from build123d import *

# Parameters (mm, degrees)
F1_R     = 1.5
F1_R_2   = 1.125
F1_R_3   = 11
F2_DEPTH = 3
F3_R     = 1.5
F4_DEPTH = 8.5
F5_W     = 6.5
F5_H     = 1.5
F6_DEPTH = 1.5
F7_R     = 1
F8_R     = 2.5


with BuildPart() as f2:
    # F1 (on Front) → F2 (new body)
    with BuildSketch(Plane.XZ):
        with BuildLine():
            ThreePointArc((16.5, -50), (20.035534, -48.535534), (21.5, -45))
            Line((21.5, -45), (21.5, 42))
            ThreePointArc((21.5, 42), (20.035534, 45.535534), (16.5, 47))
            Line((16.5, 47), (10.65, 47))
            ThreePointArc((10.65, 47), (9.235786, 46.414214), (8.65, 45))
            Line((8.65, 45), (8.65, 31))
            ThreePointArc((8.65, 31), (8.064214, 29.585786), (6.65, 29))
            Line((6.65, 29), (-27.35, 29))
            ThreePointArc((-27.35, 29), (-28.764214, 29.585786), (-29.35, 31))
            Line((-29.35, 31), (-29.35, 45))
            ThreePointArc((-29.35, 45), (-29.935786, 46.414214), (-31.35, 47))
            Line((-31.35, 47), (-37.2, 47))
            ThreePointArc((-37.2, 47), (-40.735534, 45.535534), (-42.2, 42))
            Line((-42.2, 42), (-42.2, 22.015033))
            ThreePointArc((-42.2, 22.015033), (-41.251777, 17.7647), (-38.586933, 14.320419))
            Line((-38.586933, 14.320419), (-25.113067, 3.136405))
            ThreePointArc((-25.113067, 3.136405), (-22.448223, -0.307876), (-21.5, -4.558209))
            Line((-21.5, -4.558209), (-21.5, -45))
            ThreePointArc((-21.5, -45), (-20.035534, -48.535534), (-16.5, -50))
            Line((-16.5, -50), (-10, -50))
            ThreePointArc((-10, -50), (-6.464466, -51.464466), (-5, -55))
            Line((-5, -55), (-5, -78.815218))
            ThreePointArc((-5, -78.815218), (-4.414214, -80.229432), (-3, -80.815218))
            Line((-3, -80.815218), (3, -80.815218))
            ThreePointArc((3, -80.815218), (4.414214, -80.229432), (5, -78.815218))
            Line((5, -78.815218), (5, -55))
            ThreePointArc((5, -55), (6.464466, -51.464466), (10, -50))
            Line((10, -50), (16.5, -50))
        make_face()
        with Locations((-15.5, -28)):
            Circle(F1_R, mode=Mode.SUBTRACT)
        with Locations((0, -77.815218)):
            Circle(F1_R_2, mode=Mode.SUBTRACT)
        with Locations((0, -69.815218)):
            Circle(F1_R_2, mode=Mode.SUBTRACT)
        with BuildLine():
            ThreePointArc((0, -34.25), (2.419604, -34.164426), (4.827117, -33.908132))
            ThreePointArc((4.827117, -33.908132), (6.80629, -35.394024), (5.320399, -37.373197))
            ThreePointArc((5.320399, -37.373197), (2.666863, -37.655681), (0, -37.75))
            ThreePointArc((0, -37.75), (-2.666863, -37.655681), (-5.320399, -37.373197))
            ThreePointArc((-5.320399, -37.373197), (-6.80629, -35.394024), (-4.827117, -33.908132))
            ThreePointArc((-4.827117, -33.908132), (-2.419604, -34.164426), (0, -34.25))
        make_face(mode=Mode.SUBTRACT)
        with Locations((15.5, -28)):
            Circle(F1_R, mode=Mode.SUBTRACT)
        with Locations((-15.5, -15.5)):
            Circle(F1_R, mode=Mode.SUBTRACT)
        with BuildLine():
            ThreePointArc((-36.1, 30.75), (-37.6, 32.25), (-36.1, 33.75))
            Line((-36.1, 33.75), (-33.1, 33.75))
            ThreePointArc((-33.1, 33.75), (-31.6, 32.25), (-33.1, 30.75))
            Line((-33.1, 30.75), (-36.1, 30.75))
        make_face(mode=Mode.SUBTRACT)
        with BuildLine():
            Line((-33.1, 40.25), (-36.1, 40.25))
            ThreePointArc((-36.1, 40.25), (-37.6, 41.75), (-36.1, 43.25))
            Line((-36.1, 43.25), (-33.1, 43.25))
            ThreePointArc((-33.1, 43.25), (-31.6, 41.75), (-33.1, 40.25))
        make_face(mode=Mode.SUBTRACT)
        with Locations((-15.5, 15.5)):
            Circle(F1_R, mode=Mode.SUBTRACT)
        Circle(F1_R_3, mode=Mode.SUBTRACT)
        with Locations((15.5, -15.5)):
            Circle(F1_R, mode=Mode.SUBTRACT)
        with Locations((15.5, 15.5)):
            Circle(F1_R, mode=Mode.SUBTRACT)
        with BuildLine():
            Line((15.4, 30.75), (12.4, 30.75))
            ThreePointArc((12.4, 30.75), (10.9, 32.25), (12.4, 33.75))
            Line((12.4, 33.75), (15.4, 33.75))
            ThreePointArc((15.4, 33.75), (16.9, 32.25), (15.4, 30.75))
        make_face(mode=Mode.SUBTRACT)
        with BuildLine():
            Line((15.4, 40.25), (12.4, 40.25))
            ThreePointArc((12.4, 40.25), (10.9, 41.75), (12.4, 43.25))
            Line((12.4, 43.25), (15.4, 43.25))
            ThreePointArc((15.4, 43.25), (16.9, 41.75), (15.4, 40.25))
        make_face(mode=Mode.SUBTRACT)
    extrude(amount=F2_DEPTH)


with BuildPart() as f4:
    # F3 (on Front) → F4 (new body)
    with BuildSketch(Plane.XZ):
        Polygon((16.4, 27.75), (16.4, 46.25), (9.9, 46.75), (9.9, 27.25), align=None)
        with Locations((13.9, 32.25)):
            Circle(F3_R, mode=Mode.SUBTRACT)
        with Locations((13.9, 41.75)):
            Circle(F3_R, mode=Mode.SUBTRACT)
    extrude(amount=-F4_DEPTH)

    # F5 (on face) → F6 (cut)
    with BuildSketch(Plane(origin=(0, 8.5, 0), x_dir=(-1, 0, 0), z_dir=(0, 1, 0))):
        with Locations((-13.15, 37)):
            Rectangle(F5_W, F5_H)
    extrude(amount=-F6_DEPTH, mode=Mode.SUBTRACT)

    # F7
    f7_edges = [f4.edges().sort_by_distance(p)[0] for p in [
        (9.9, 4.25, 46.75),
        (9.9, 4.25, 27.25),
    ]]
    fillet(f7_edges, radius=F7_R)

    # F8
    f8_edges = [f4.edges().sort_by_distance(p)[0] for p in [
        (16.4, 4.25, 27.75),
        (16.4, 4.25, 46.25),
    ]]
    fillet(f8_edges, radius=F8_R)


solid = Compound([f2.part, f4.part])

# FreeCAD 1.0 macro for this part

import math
import FreeCAD as App
import Part
import Sketcher


def edges_at(feature, points):
    """Names of the edges that pass closest to the given points."""
    edges = feature.Shape.Edges
    near = lambda p: min(range(len(edges)), key=lambda i: edges[i].distToShape(Part.Vertex(*p))[0])
    return sorted({f"Edge{near(p) + 1}" for p in points})

doc = App.newDocument("Part")
body = doc.addObject("PartDesign::Body", "Body")

sketch1 = body.newObject("Sketcher::SketchObject", "Sketch")
sketch1.AttachmentSupport = (doc.getObject("XZ_Plane"), [""])
sketch1.MapMode = "FlatFace"
sketch1.addGeometry(Part.ArcOfCircle(Part.Circle(App.Vector(16.5, -45, 0), App.Vector(0, 0, 1), 5), math.radians(-90.000004), math.radians(0.000004)), False)
sketch1.addGeometry(Part.LineSegment(App.Vector(21.5, -45, 0), App.Vector(21.5, 42, 0)), False)
sketch1.addGeometry(Part.ArcOfCircle(Part.Circle(App.Vector(16.5, 42, 0), App.Vector(0, 0, 1), 5), math.radians(-0.000004), math.radians(90.000004)), False)
sketch1.addGeometry(Part.LineSegment(App.Vector(16.5, 47, 0), App.Vector(10.65, 47, 0)), False)
sketch1.addGeometry(Part.ArcOfCircle(Part.Circle(App.Vector(10.649999, 45.000001, 0), App.Vector(0, 0, 1), 1.999999), math.radians(89.999957), math.radians(180.000043)), False)
sketch1.addGeometry(Part.LineSegment(App.Vector(8.65, 45, 0), App.Vector(8.65, 31, 0)), False)
sketch1.addGeometry(Part.ArcOfCircle(Part.Circle(App.Vector(6.650001, 30.999999, 0), App.Vector(0, 0, 1), 1.999999), math.radians(-90.000043), math.radians(0.000043)), False)
sketch1.addGeometry(Part.LineSegment(App.Vector(6.65, 29, 0), App.Vector(-27.35, 29, 0)), False)
sketch1.addGeometry(Part.ArcOfCircle(Part.Circle(App.Vector(-27.350001, 30.999999, 0), App.Vector(0, 0, 1), 1.999999), math.radians(179.999957), math.radians(270.000043)), False)
sketch1.addGeometry(Part.LineSegment(App.Vector(-29.35, 31, 0), App.Vector(-29.35, 45, 0)), False)
sketch1.addGeometry(Part.ArcOfCircle(Part.Circle(App.Vector(-31.349999, 45.000001, 0), App.Vector(0, 0, 1), 1.999999), math.radians(-0.000043), math.radians(90.000043)), False)
sketch1.addGeometry(Part.LineSegment(App.Vector(-31.35, 47, 0), App.Vector(-37.2, 47, 0)), False)
sketch1.addGeometry(Part.ArcOfCircle(Part.Circle(App.Vector(-37.2, 42, 0), App.Vector(0, 0, 1), 5), math.radians(89.999996), math.radians(180.000004)), False)
sketch1.addGeometry(Part.LineSegment(App.Vector(-42.2, 42, 0), App.Vector(-42.2, 22.015033, 0)), False)
sketch1.addGeometry(Part.ArcOfCircle(Part.Circle(App.Vector(-32.199999, 22.015033, 0), App.Vector(0, 0, 1), 10.000001), math.radians(-179.999998), math.radians(-129.694453)), False)
sketch1.addGeometry(Part.LineSegment(App.Vector(-38.586933, 14.320419, 0), App.Vector(-25.113067, 3.136405, 0)), False)
sketch1.addGeometry(Part.ArcOfCircle(Part.Circle(App.Vector(-31.500001, -4.558209, 0), App.Vector(0, 0, 1), 10.000001), math.radians(0.000002), math.radians(50.305547)), False)
sketch1.addGeometry(Part.LineSegment(App.Vector(-21.5, -4.558209, 0), App.Vector(-21.5, -45, 0)), False)
sketch1.addGeometry(Part.ArcOfCircle(Part.Circle(App.Vector(-16.5, -45, 0), App.Vector(0, 0, 1), 5), math.radians(179.999996), math.radians(270.000004)), False)
sketch1.addGeometry(Part.LineSegment(App.Vector(-16.5, -50, 0), App.Vector(-10, -50, 0)), False)
sketch1.addGeometry(Part.ArcOfCircle(Part.Circle(App.Vector(-10, -55, 0), App.Vector(0, 0, 1), 5), math.radians(-0.000004), math.radians(90.000004)), False)
sketch1.addGeometry(Part.LineSegment(App.Vector(-5, -55, 0), App.Vector(-5, -78.815218, 0)), False)
sketch1.addGeometry(Part.ArcOfCircle(Part.Circle(App.Vector(-3.000001, -78.815219, 0), App.Vector(0, 0, 1), 1.999999), math.radians(179.999957), math.radians(270.000043)), False)
sketch1.addGeometry(Part.LineSegment(App.Vector(-3, -80.815218, 0), App.Vector(3, -80.815218, 0)), False)
sketch1.addGeometry(Part.ArcOfCircle(Part.Circle(App.Vector(3.000001, -78.815219, 0), App.Vector(0, 0, 1), 1.999999), math.radians(-90.000043), math.radians(0.000043)), False)
sketch1.addGeometry(Part.LineSegment(App.Vector(5, -78.815218, 0), App.Vector(5, -55, 0)), False)
sketch1.addGeometry(Part.ArcOfCircle(Part.Circle(App.Vector(10, -55, 0), App.Vector(0, 0, 1), 5), math.radians(89.999996), math.radians(180.000004)), False)
sketch1.addGeometry(Part.LineSegment(App.Vector(10, -50, 0), App.Vector(16.5, -50, 0)), False)
sketch1.addGeometry(Part.Circle(App.Vector(-15.5, -28, 0), App.Vector(0, 0, 1), 1.5), False)
sketch1.addGeometry(Part.Circle(App.Vector(0, -77.815218, 0), App.Vector(0, 0, 1), 1.125), False)
sketch1.addGeometry(Part.Circle(App.Vector(0, -69.815218, 0), App.Vector(0, 0, 1), 1.125), False)
sketch1.addGeometry(Part.ArcOfCircle(Part.Circle(App.Vector(0.000003, -0.000002, 0), App.Vector(0, 0, 1), 34.249998), math.radians(-98.102117), math.radians(-90.000004)), False)
sketch1.addGeometry(Part.ArcOfCircle(Part.Circle(App.Vector(-0.000003, -0.000002, 0), App.Vector(0, 0, 1), 34.249998), math.radians(-89.999996), math.radians(-81.897883)), False)
sketch1.addGeometry(Part.ArcOfCircle(Part.Circle(App.Vector(5.073757, -35.640665, 0), App.Vector(0, 0, 1), 1.75), math.radians(-81.897871), math.radians(98.102092)), False)
sketch1.addGeometry(Part.ArcOfCircle(Part.Circle(App.Vector(-0.000011, 0.000158, 0), App.Vector(0, 0, 1), 37.750158), math.radians(-89.999983), math.radians(-81.897905)), False)
sketch1.addGeometry(Part.ArcOfCircle(Part.Circle(App.Vector(0.000011, 0.000158, 0), App.Vector(0, 0, 1), 37.750158), math.radians(-98.102095), math.radians(-90.000017)), False)
sketch1.addGeometry(Part.ArcOfCircle(Part.Circle(App.Vector(-5.073757, -35.640665, 0), App.Vector(0, 0, 1), 1.75), math.radians(81.897908), math.radians(261.897871)), False)
sketch1.addGeometry(Part.Circle(App.Vector(15.5, -28, 0), App.Vector(0, 0, 1), 1.5), False)
sketch1.addGeometry(Part.Circle(App.Vector(-15.5, -15.5, 0), App.Vector(0, 0, 1), 1.5), False)
sketch1.addGeometry(Part.LineSegment(App.Vector(-33.1, 30.75, 0), App.Vector(-36.1, 30.75, 0)), False)
sketch1.addGeometry(Part.ArcOfCircle(Part.Circle(App.Vector(-36.1, 32.25, 0), App.Vector(0, 0, 1), 1.5), math.radians(90), math.radians(270)), False)
sketch1.addGeometry(Part.LineSegment(App.Vector(-36.1, 33.75, 0), App.Vector(-33.1, 33.75, 0)), False)
sketch1.addGeometry(Part.ArcOfCircle(Part.Circle(App.Vector(-33.1, 32.25, 0), App.Vector(0, 0, 1), 1.5), math.radians(-90), math.radians(90)), False)
sketch1.addGeometry(Part.ArcOfCircle(Part.Circle(App.Vector(-33.1, 41.75, 0), App.Vector(0, 0, 1), 1.5), math.radians(-90), math.radians(90)), False)
sketch1.addGeometry(Part.LineSegment(App.Vector(-33.1, 40.25, 0), App.Vector(-36.1, 40.25, 0)), False)
sketch1.addGeometry(Part.ArcOfCircle(Part.Circle(App.Vector(-36.1, 41.75, 0), App.Vector(0, 0, 1), 1.5), math.radians(90), math.radians(270)), False)
sketch1.addGeometry(Part.LineSegment(App.Vector(-36.1, 43.25, 0), App.Vector(-33.1, 43.25, 0)), False)
sketch1.addGeometry(Part.Circle(App.Vector(-15.5, 15.5, 0), App.Vector(0, 0, 1), 1.5), False)
sketch1.addGeometry(Part.Circle(App.Vector(0, 0, 0), App.Vector(0, 0, 1), 11), False)
sketch1.addGeometry(Part.Circle(App.Vector(15.5, -15.5, 0), App.Vector(0, 0, 1), 1.5), False)
sketch1.addGeometry(Part.Circle(App.Vector(15.5, 15.5, 0), App.Vector(0, 0, 1), 1.5), False)
sketch1.addGeometry(Part.ArcOfCircle(Part.Circle(App.Vector(15.4, 32.25, 0), App.Vector(0, 0, 1), 1.5), math.radians(-90), math.radians(90)), False)
sketch1.addGeometry(Part.LineSegment(App.Vector(15.4, 30.75, 0), App.Vector(12.4, 30.75, 0)), False)
sketch1.addGeometry(Part.ArcOfCircle(Part.Circle(App.Vector(12.4, 32.25, 0), App.Vector(0, 0, 1), 1.5), math.radians(90), math.radians(270)), False)
sketch1.addGeometry(Part.LineSegment(App.Vector(12.4, 33.75, 0), App.Vector(15.4, 33.75, 0)), False)
sketch1.addGeometry(Part.ArcOfCircle(Part.Circle(App.Vector(15.4, 41.75, 0), App.Vector(0, 0, 1), 1.5), math.radians(-90), math.radians(90)), False)
sketch1.addGeometry(Part.LineSegment(App.Vector(15.4, 40.25, 0), App.Vector(12.4, 40.25, 0)), False)
sketch1.addGeometry(Part.ArcOfCircle(Part.Circle(App.Vector(12.4, 41.75, 0), App.Vector(0, 0, 1), 1.5), math.radians(90), math.radians(270)), False)
sketch1.addGeometry(Part.LineSegment(App.Vector(12.4, 43.25, 0), App.Vector(15.4, 43.25, 0)), False)
sketch1.addConstraint(Sketcher.Constraint("Coincident", 0, 2, 1, 1))
sketch1.addConstraint(Sketcher.Constraint("Coincident", 1, 2, 2, 1))
sketch1.addConstraint(Sketcher.Constraint("Coincident", 2, 2, 3, 1))
sketch1.addConstraint(Sketcher.Constraint("Coincident", 3, 2, 4, 1))
sketch1.addConstraint(Sketcher.Constraint("Coincident", 4, 2, 5, 1))
sketch1.addConstraint(Sketcher.Constraint("Coincident", 5, 2, 6, 2))
sketch1.addConstraint(Sketcher.Constraint("Coincident", 6, 1, 7, 1))
sketch1.addConstraint(Sketcher.Constraint("Coincident", 7, 2, 8, 2))
sketch1.addConstraint(Sketcher.Constraint("Coincident", 8, 1, 9, 1))
sketch1.addConstraint(Sketcher.Constraint("Coincident", 9, 2, 10, 1))
sketch1.addConstraint(Sketcher.Constraint("Coincident", 10, 2, 11, 1))
sketch1.addConstraint(Sketcher.Constraint("Coincident", 11, 2, 12, 1))
sketch1.addConstraint(Sketcher.Constraint("Coincident", 12, 2, 13, 1))
sketch1.addConstraint(Sketcher.Constraint("Coincident", 13, 2, 14, 1))
sketch1.addConstraint(Sketcher.Constraint("Coincident", 14, 2, 15, 1))
sketch1.addConstraint(Sketcher.Constraint("Coincident", 15, 2, 16, 2))
sketch1.addConstraint(Sketcher.Constraint("Coincident", 16, 1, 17, 1))
sketch1.addConstraint(Sketcher.Constraint("Coincident", 17, 2, 18, 1))
sketch1.addConstraint(Sketcher.Constraint("Coincident", 18, 2, 19, 1))
sketch1.addConstraint(Sketcher.Constraint("Coincident", 19, 2, 20, 2))
sketch1.addConstraint(Sketcher.Constraint("Coincident", 20, 1, 21, 1))
sketch1.addConstraint(Sketcher.Constraint("Coincident", 21, 2, 22, 1))
sketch1.addConstraint(Sketcher.Constraint("Coincident", 22, 2, 23, 1))
sketch1.addConstraint(Sketcher.Constraint("Coincident", 23, 2, 24, 1))
sketch1.addConstraint(Sketcher.Constraint("Coincident", 24, 2, 25, 1))
sketch1.addConstraint(Sketcher.Constraint("Coincident", 25, 2, 26, 2))
sketch1.addConstraint(Sketcher.Constraint("Coincident", 26, 1, 27, 1))
sketch1.addConstraint(Sketcher.Constraint("Coincident", 27, 2, 0, 1))
sketch1.addConstraint(Sketcher.Constraint("Coincident", 31, 2, 32, 1))
sketch1.addConstraint(Sketcher.Constraint("Coincident", 32, 2, 33, 2))
sketch1.addConstraint(Sketcher.Constraint("Coincident", 33, 1, 34, 2))
sketch1.addConstraint(Sketcher.Constraint("Coincident", 34, 1, 35, 2))
sketch1.addConstraint(Sketcher.Constraint("Coincident", 35, 1, 36, 2))
sketch1.addConstraint(Sketcher.Constraint("Coincident", 36, 1, 31, 1))
sketch1.addConstraint(Sketcher.Constraint("Coincident", 39, 2, 40, 2))
sketch1.addConstraint(Sketcher.Constraint("Coincident", 40, 1, 41, 1))
sketch1.addConstraint(Sketcher.Constraint("Coincident", 41, 2, 42, 2))
sketch1.addConstraint(Sketcher.Constraint("Coincident", 42, 1, 39, 1))
sketch1.addConstraint(Sketcher.Constraint("Coincident", 43, 1, 44, 1))
sketch1.addConstraint(Sketcher.Constraint("Coincident", 44, 2, 45, 2))
sketch1.addConstraint(Sketcher.Constraint("Coincident", 45, 1, 46, 1))
sketch1.addConstraint(Sketcher.Constraint("Coincident", 46, 2, 43, 2))
sketch1.addConstraint(Sketcher.Constraint("Coincident", 51, 1, 52, 1))
sketch1.addConstraint(Sketcher.Constraint("Coincident", 52, 2, 53, 2))
sketch1.addConstraint(Sketcher.Constraint("Coincident", 53, 1, 54, 1))
sketch1.addConstraint(Sketcher.Constraint("Coincident", 54, 2, 51, 2))
sketch1.addConstraint(Sketcher.Constraint("Coincident", 55, 1, 56, 1))
sketch1.addConstraint(Sketcher.Constraint("Coincident", 56, 2, 57, 2))
sketch1.addConstraint(Sketcher.Constraint("Coincident", 57, 1, 58, 1))
sketch1.addConstraint(Sketcher.Constraint("Coincident", 58, 2, 55, 2))
sketch1.addConstraint(Sketcher.Constraint("Vertical", 1))
sketch1.addConstraint(Sketcher.Constraint("Horizontal", 3))
sketch1.addConstraint(Sketcher.Constraint("Vertical", 5))
sketch1.addConstraint(Sketcher.Constraint("Horizontal", 7))
sketch1.addConstraint(Sketcher.Constraint("Vertical", 9))
sketch1.addConstraint(Sketcher.Constraint("Horizontal", 11))
sketch1.addConstraint(Sketcher.Constraint("Vertical", 13))
sketch1.addConstraint(Sketcher.Constraint("Vertical", 17))
sketch1.addConstraint(Sketcher.Constraint("Horizontal", 19))
sketch1.addConstraint(Sketcher.Constraint("Vertical", 21))
sketch1.addConstraint(Sketcher.Constraint("Horizontal", 23))
sketch1.addConstraint(Sketcher.Constraint("Vertical", 25))
sketch1.addConstraint(Sketcher.Constraint("Horizontal", 27))
sketch1.addConstraint(Sketcher.Constraint("Horizontal", 39))
sketch1.addConstraint(Sketcher.Constraint("Horizontal", 41))
sketch1.addConstraint(Sketcher.Constraint("Horizontal", 44))
sketch1.addConstraint(Sketcher.Constraint("Horizontal", 46))
sketch1.addConstraint(Sketcher.Constraint("Horizontal", 52))
sketch1.addConstraint(Sketcher.Constraint("Horizontal", 54))
sketch1.addConstraint(Sketcher.Constraint("Horizontal", 56))
sketch1.addConstraint(Sketcher.Constraint("Horizontal", 58))
sketch1.addConstraint(Sketcher.Constraint("Coincident", 31, 3, -1, 1))
sketch1.addConstraint(Sketcher.Constraint("Coincident", 32, 3, -1, 1))
sketch1.addConstraint(Sketcher.Constraint("Coincident", 48, 3, -1, 1))
sketch1.addConstraint(Sketcher.Constraint("PointOnObject", 29, 3, -2))
sketch1.addConstraint(Sketcher.Constraint("PointOnObject", 30, 3, -2))
sketch1.addConstraint(Sketcher.Constraint("PointOnObject", 31, 2, -2))
sketch1.addConstraint(Sketcher.Constraint("PointOnObject", 34, 1, -2))
sketch1.addConstraint(Sketcher.Constraint("Diameter", 28, 3.0))
sketch1.addConstraint(Sketcher.Constraint("Diameter", 37, 3.0))
sketch1.addConstraint(Sketcher.Constraint("Diameter", 38, 3.0))
sketch1.addConstraint(Sketcher.Constraint("Diameter", 47, 3.0))
sketch1.addConstraint(Sketcher.Constraint("Diameter", 48, 22.0))
sketch1.addConstraint(Sketcher.Constraint("Diameter", 49, 3.0))
sketch1.addConstraint(Sketcher.Constraint("Diameter", 50, 3.0))
sketch1.addConstraint(Sketcher.Constraint("Radius", 0, 5.0))
sketch1.addConstraint(Sketcher.Constraint("Radius", 2, 5.0))
sketch1.addConstraint(Sketcher.Constraint("Radius", 4, 1.999999))
sketch1.addConstraint(Sketcher.Constraint("Radius", 6, 1.999999))
sketch1.addConstraint(Sketcher.Constraint("Radius", 8, 1.999999))
sketch1.addConstraint(Sketcher.Constraint("Radius", 10, 1.999999))
sketch1.addConstraint(Sketcher.Constraint("Radius", 12, 5.0))
sketch1.addConstraint(Sketcher.Constraint("Radius", 14, 10.000001))
sketch1.addConstraint(Sketcher.Constraint("Radius", 16, 10.000001))
sketch1.addConstraint(Sketcher.Constraint("Radius", 18, 5.0))
sketch1.addConstraint(Sketcher.Constraint("Radius", 20, 5.0))
sketch1.addConstraint(Sketcher.Constraint("Radius", 22, 1.999999))
sketch1.addConstraint(Sketcher.Constraint("Radius", 24, 1.999999))
sketch1.addConstraint(Sketcher.Constraint("Radius", 26, 5.0))
sketch1.addConstraint(Sketcher.Constraint("Radius", 40, 1.5))
sketch1.addConstraint(Sketcher.Constraint("Radius", 43, 1.5))
sketch1.addConstraint(Sketcher.Constraint("Radius", 51, 1.5))
sketch1.addConstraint(Sketcher.Constraint("Radius", 55, 1.5))
sketch1.addConstraint(Sketcher.Constraint("Diameter", 29, 2.25))
sketch1.addConstraint(Sketcher.Constraint("Diameter", 30, 2.25))
sketch1.addConstraint(Sketcher.Constraint("DistanceX", 7, 2, 7, 1, 34.0))
sketch1.addConstraint(Sketcher.Constraint("DistanceX", 23, 1, 23, 2, 6.0))
sketch1.addConstraint(Sketcher.Constraint("DistanceX", 39, 2, 39, 1, 3.0))
sketch1.addConstraint(Sketcher.Constraint("DistanceX", 41, 1, 41, 2, 3.0))
sketch1.addConstraint(Sketcher.Constraint("DistanceX", 44, 2, 44, 1, 3.0))
sketch1.addConstraint(Sketcher.Constraint("DistanceX", 46, 1, 46, 2, 3.0))
sketch1.addConstraint(Sketcher.Constraint("DistanceX", 52, 2, 52, 1, 3.0))
sketch1.addConstraint(Sketcher.Constraint("DistanceX", 54, 1, 54, 2, 3.0))
sketch1.addConstraint(Sketcher.Constraint("DistanceX", 56, 2, 56, 1, 3.0))
sketch1.addConstraint(Sketcher.Constraint("DistanceX", 58, 1, 58, 2, 3.0))
sketch1.addConstraint(Sketcher.Constraint("DistanceY", 1, 1, 1, 2, 87.0))
sketch1.addConstraint(Sketcher.Constraint("DistanceY", 5, 2, 5, 1, 14.0))
sketch1.addConstraint(Sketcher.Constraint("DistanceY", 9, 1, 9, 2, 14.0))
sketch1.addConstraint(Sketcher.Constraint("Radius", 31, 34.249998))
sketch1.addConstraint(Sketcher.Constraint("Radius", 33, 1.75))
sketch1.addConstraint(Sketcher.Constraint("Radius", 36, 1.75))
sketch1.addConstraint(Sketcher.Constraint("DistanceX", 19, 1, 19, 2, 6.5))
sketch1.addConstraint(Sketcher.Constraint("DistanceX", 27, 1, 27, 2, 6.5))
sketch1.addConstraint(Sketcher.Constraint("DistanceY", 0, 3, -1, 1, 45.0))
sketch1.addConstraint(Sketcher.Constraint("DistanceY", -1, 1, 2, 3, 42.0))
sketch1.addConstraint(Sketcher.Constraint("DistanceY", -1, 1, 6, 3, 30.999999))
sketch1.addConstraint(Sketcher.Constraint("DistanceY", -1, 1, 10, 3, 45.000001))
sketch1.addConstraint(Sketcher.Constraint("DistanceY", 18, 3, -1, 1, 45.0))
sketch1.addConstraint(Sketcher.Constraint("DistanceX", 20, 3, -1, 1, 10.0))
sketch1.addConstraint(Sketcher.Constraint("DistanceX", -1, 1, 24, 3, 3.000001))
sketch1.addConstraint(Sketcher.Constraint("DistanceY", 28, 3, -1, 1, 28.0))
sketch1.addConstraint(Sketcher.Constraint("DistanceY", 37, 3, -1, 1, 28.0))
sketch1.addConstraint(Sketcher.Constraint("DistanceY", 0, 2, -1, 1, 45.0))
sketch1.addConstraint(Sketcher.Constraint("DistanceY", -1, 1, 4, 2, 45.0))
sketch1.addConstraint(Sketcher.Constraint("DistanceY", -1, 1, 8, 1, 31.0))
sketch1.addConstraint(Sketcher.Constraint("DistanceY", -1, 1, 12, 2, 42.0))
sketch1.addConstraint(Sketcher.Constraint("DistanceY", 17, 2, -1, 1, 45.0))
sketch1.addConstraint(Sketcher.Constraint("DistanceX", 19, 2, -1, 1, 10.0))
sketch1.addConstraint(Sketcher.Constraint("DistanceY", 20, 1, -1, 1, 55.0))
sketch1.addConstraint(Sketcher.Constraint("DistanceX", 22, 2, -1, 1, 3.0))
sketch1.addConstraint(Sketcher.Constraint("DistanceY", 25, 2, -1, 1, 55.0))
sketch1.addConstraint(Sketcher.Constraint("DistanceX", -1, 1, 26, 1, 10.0))
sketch1.addConstraint(Sketcher.Constraint("DistanceX", 3, 2, 3, 1, 5.85))
sketch1.addConstraint(Sketcher.Constraint("DistanceX", 11, 2, 11, 1, 5.85))
sketch1.addConstraint(Sketcher.Constraint("DistanceX", -1, 1, 0, 3, 16.5))
sketch1.addConstraint(Sketcher.Constraint("DistanceX", 12, 3, -1, 1, 37.2))
sketch1.addConstraint(Sketcher.Constraint("DistanceX", 16, 3, -1, 1, 31.500001))
sketch1.addConstraint(Sketcher.Constraint("DistanceX", 28, 3, -1, 1, 15.5))
sketch1.addConstraint(Sketcher.Constraint("DistanceX", -1, 1, 37, 3, 15.5))
sketch1.addConstraint(Sketcher.Constraint("DistanceX", 38, 3, -1, 1, 15.5))
sketch1.addConstraint(Sketcher.Constraint("DistanceY", 38, 3, -1, 1, 15.5))
sketch1.addConstraint(Sketcher.Constraint("DistanceX", 40, 3, -1, 1, 36.1))
sketch1.addConstraint(Sketcher.Constraint("DistanceX", 42, 3, -1, 1, 33.1))
sketch1.addConstraint(Sketcher.Constraint("DistanceX", 43, 3, -1, 1, 33.1))
sketch1.addConstraint(Sketcher.Constraint("DistanceX", 45, 3, -1, 1, 36.1))
sketch1.addConstraint(Sketcher.Constraint("DistanceX", 47, 3, -1, 1, 15.5))
sketch1.addConstraint(Sketcher.Constraint("DistanceY", -1, 1, 47, 3, 15.5))
sketch1.addConstraint(Sketcher.Constraint("DistanceX", -1, 1, 49, 3, 15.5))
sketch1.addConstraint(Sketcher.Constraint("DistanceY", 49, 3, -1, 1, 15.5))
sketch1.addConstraint(Sketcher.Constraint("DistanceX", -1, 1, 50, 3, 15.5))
sketch1.addConstraint(Sketcher.Constraint("DistanceY", -1, 1, 50, 3, 15.5))
sketch1.addConstraint(Sketcher.Constraint("DistanceX", -1, 1, 51, 3, 15.4))
sketch1.addConstraint(Sketcher.Constraint("DistanceX", -1, 1, 53, 3, 12.4))
sketch1.addConstraint(Sketcher.Constraint("DistanceX", -1, 1, 55, 3, 15.4))
sketch1.addConstraint(Sketcher.Constraint("DistanceX", -1, 1, 57, 3, 12.4))
sketch1.addConstraint(Sketcher.Constraint("DistanceX", -1, 1, 2, 2, 16.5))
sketch1.addConstraint(Sketcher.Constraint("DistanceX", 11, 2, -1, 1, 37.2))
sketch1.addConstraint(Sketcher.Constraint("DistanceX", 39, 2, -1, 1, 36.1))
sketch1.addConstraint(Sketcher.Constraint("DistanceX", 40, 1, -1, 1, 36.1))
sketch1.addConstraint(Sketcher.Constraint("DistanceX", 43, 1, -1, 1, 33.1))
sketch1.addConstraint(Sketcher.Constraint("DistanceX", 45, 1, -1, 1, 36.1))
sketch1.addConstraint(Sketcher.Constraint("DistanceX", -1, 1, 51, 1, 15.4))
sketch1.addConstraint(Sketcher.Constraint("DistanceX", -1, 1, 53, 1, 12.4))
sketch1.addConstraint(Sketcher.Constraint("DistanceX", -1, 1, 55, 1, 15.4))
sketch1.addConstraint(Sketcher.Constraint("DistanceX", -1, 1, 57, 1, 12.4))
sketch1.addConstraint(Sketcher.Constraint("DistanceX", -1, 1, 4, 3, 10.649999))
sketch1.addConstraint(Sketcher.Constraint("DistanceX", 8, 3, -1, 1, 27.350001))
sketch1.addConstraint(Sketcher.Constraint("DistanceY", -1, 1, 40, 3, 32.25))
sketch1.addConstraint(Sketcher.Constraint("DistanceY", -1, 1, 43, 3, 41.75))
sketch1.addConstraint(Sketcher.Constraint("DistanceY", -1, 1, 51, 3, 32.25))
sketch1.addConstraint(Sketcher.Constraint("DistanceY", -1, 1, 55, 3, 41.75))
sketch1.addConstraint(Sketcher.Constraint("DistanceX", -1, 1, 6, 1, 6.65))
sketch1.addConstraint(Sketcher.Constraint("DistanceY", 34, 1, -1, 1, 37.75))
sketch1.addConstraint(Sketcher.Constraint("Radius", 34, 37.750158))
sketch1.addConstraint(Sketcher.Constraint("Radius", 35, 37.750158))
sketch1.addConstraint(Sketcher.Constraint("DistanceY", 17, 2, 17, 1, 40.441791))
sketch1.addConstraint(Sketcher.Constraint("DistanceY", 21, 2, 21, 1, 23.815218))
sketch1.addConstraint(Sketcher.Constraint("DistanceY", 25, 1, 25, 2, 23.815218))
sketch1.addConstraint(Sketcher.Constraint("DistanceX", -1, 1, 33, 1, 5.320399))
sketch1.addConstraint(Sketcher.Constraint("DistanceX", 35, 1, -1, 1, 5.320399))
sketch1.addConstraint(Sketcher.Constraint("DistanceY", 13, 2, 13, 1, 19.984967))
sketch1.addConstraint(Sketcher.Constraint("DistanceY", 16, 3, -1, 1, 4.558209))
sketch1.addConstraint(Sketcher.Constraint("DistanceY", 22, 3, -1, 1, 78.815219))
sketch1.addConstraint(Sketcher.Constraint("DistanceY", 29, 3, -1, 1, 77.815218))
sketch1.addConstraint(Sketcher.Constraint("DistanceY", 30, 3, -1, 1, 69.815218))
sketch1.addConstraint(Sketcher.Constraint("DistanceY", -1, 1, 14, 2, 14.320419))
sketch1.addConstraint(Sketcher.Constraint("DistanceY", 32, 2, -1, 1, 33.908132))
sketch1.addConstraint(Sketcher.Constraint("DistanceY", 36, 1, -1, 1, 33.908132))
sketch1.addConstraint(Sketcher.Constraint("Distance", 15, 17.510775))
sketch1.addConstraint(Sketcher.Constraint("DistanceY", -1, 1, 14, 3, 22.015033))
sketch1.addConstraint(Sketcher.Constraint("DistanceX", -1, 1, 33, 3, 5.073757))
sketch1.addConstraint(Sketcher.Constraint("DistanceX", 36, 3, -1, 1, 5.073757))
pad1 = body.newObject("PartDesign::Pad", "Pad")
pad1.Profile = sketch1
pad1.Length = 3
body2 = doc.addObject("PartDesign::Body", "Body001")

sketch2 = body2.newObject("Sketcher::SketchObject", "Sketch001")
sketch2.AttachmentSupport = (doc.getObject("XZ_Plane001"), [""])
sketch2.MapMode = "FlatFace"
sketch2.addGeometry(Part.LineSegment(App.Vector(16.4, 27.8, 0), App.Vector(16.4, 46.2, 0)), False)
sketch2.addGeometry(Part.LineSegment(App.Vector(16.4, 46.2, 0), App.Vector(9.9, 46.8, 0)), False)
sketch2.addGeometry(Part.LineSegment(App.Vector(9.9, 46.8, 0), App.Vector(9.9, 27.2, 0)), False)
sketch2.addGeometry(Part.LineSegment(App.Vector(9.9, 27.2, 0), App.Vector(16.4, 27.8, 0)), False)
sketch2.addGeometry(Part.Circle(App.Vector(13.9, 32.2, 0), App.Vector(0, 0, 1), 1.5), False)
sketch2.addGeometry(Part.Circle(App.Vector(13.9, 41.8, 0), App.Vector(0, 0, 1), 1.5), False)
sketch2.addConstraint(Sketcher.Constraint("Coincident", 0, 2, 1, 1))
sketch2.addConstraint(Sketcher.Constraint("Coincident", 1, 2, 2, 1))
sketch2.addConstraint(Sketcher.Constraint("Coincident", 2, 2, 3, 1))
sketch2.addConstraint(Sketcher.Constraint("Coincident", 3, 2, 0, 1))
sketch2.addConstraint(Sketcher.Constraint("Vertical", 0))
sketch2.addConstraint(Sketcher.Constraint("Vertical", 2))
sketch2.addConstraint(Sketcher.Constraint("Equal", 4, 5))
sketch2.addConstraint(Sketcher.Constraint("Vertical", 4, 3, 5, 3))
sketch2.addConstraint(Sketcher.Constraint("Equal", 1, 3))
sketch2.addConstraint(Sketcher.Constraint("Diameter", 4, 3.0))
sketch2.addConstraint(Sketcher.Constraint("DistanceY", 0, 1, 0, 2, 18.5))
sketch2.addConstraint(Sketcher.Constraint("DistanceY", 2, 2, 2, 1, 19.5))
sketch2.addConstraint(Sketcher.Constraint("DistanceY", 4, 3, 0, 2, 14.0))
sketch2.addConstraint(Sketcher.Constraint("DistanceX", 1, 2, 5, 3, 4.0))
sketch2.addConstraint(Sketcher.Constraint("DistanceY", 5, 3, 1, 2, 5.0))
sketch2.addConstraint(Sketcher.Constraint("DistanceX", -1, 1, 4, 3, 13.9))
sketch2.addConstraint(Sketcher.Constraint("DistanceX", -1, 1, 0, 2, 16.4))
sketch2.addConstraint(Sketcher.Constraint("DistanceY", -1, 1, 4, 3, 32.25))
pad2 = body2.newObject("PartDesign::Pad", "Pad001")
pad2.Profile = sketch2
pad2.Length = 8.5
pad2.Reversed = True

sketch3 = body2.newObject("Sketcher::SketchObject", "Sketch002")
sketch3.AttachmentSupport = (doc.getObject("XZ_Plane001"), [""])
sketch3.MapMode = "FlatFace"
sketch3.AttachmentOffset = App.Placement(App.Vector(0, 0, -8.5), App.Rotation())
sketch3.addGeometry(Part.LineSegment(App.Vector(16.4, 37.8, 0), App.Vector(16.4, 36.2, 0)), False)
sketch3.addGeometry(Part.LineSegment(App.Vector(16.4, 36.2, 0), App.Vector(9.9, 36.2, 0)), False)
sketch3.addGeometry(Part.LineSegment(App.Vector(9.9, 36.2, 0), App.Vector(9.9, 37.8, 0)), False)
sketch3.addGeometry(Part.LineSegment(App.Vector(9.9, 37.8, 0), App.Vector(16.4, 37.8, 0)), False)
sketch3.addConstraint(Sketcher.Constraint("Coincident", 0, 2, 1, 1))
sketch3.addConstraint(Sketcher.Constraint("Coincident", 1, 2, 2, 1))
sketch3.addConstraint(Sketcher.Constraint("Coincident", 2, 2, 3, 1))
sketch3.addConstraint(Sketcher.Constraint("Coincident", 3, 2, 0, 1))
sketch3.addConstraint(Sketcher.Constraint("Vertical", 0))
sketch3.addConstraint(Sketcher.Constraint("Horizontal", 1))
sketch3.addConstraint(Sketcher.Constraint("Vertical", 2))
sketch3.addConstraint(Sketcher.Constraint("Horizontal", 3))
sketch3.addConstraint(Sketcher.Constraint("DistanceX", 1, 2, 1, 1, 6.5))
sketch3.addConstraint(Sketcher.Constraint("DistanceY", 0, 2, 0, 1, 1.5))
sketch3.addConstraint(Sketcher.Constraint("DistanceX", -1, 1, 0, 2, 16.4))
sketch3.addConstraint(Sketcher.Constraint("DistanceY", -1, 1, 0, 2, 36.25))
pocket1 = body2.newObject("PartDesign::Pocket", "Pocket")
pocket1.Profile = sketch3
pocket1.Length = 1.5
pocket1.Reversed = True
doc.recompute()

fillet = body2.newObject("PartDesign::Fillet", "Fillet")
fillet.Base = (pocket1, edges_at(pocket1, [(9.9, 4.25, 46.75), (9.9, 4.25, 27.25)]))
fillet.Radius = 1
doc.recompute()

fillet2 = body2.newObject("PartDesign::Fillet", "Fillet001")
fillet2.Base = (fillet, edges_at(fillet, [(16.4, 4.25, 27.75), (16.4, 4.25, 46.25)]))
fillet2.Radius = 2.5

doc.recompute()
